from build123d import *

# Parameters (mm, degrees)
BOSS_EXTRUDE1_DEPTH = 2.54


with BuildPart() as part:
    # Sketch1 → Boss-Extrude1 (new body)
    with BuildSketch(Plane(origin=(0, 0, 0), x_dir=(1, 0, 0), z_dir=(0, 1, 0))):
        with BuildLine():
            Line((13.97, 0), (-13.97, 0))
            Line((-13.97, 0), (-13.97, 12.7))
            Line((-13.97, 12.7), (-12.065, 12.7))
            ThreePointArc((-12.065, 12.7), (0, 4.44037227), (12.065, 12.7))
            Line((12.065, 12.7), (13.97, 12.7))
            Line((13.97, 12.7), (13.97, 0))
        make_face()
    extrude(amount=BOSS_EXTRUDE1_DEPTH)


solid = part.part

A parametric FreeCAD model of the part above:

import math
import FreeCAD as App
import Part
import Sketcher

V = App.Vector
Q = App.Units.Quantity

doc = App.newDocument("Part")
body = doc.addObject("PartDesign::Body", "Body")

# Sketch on XZ plane
sketch1 = body.newObject("Sketcher::SketchObject", "Sketch")
sketch1.AttachmentSupport = (doc.getObject("XZ_Plane"), [""])
sketch1.MapMode = "FlatFace"
sketch1.addGeometry([
    Part.LineSegment(V(-14, 0, 0), V(14, 0, 0)),  # 0
    Part.LineSegment(V(14, 0, 0), V(14, -12.7, 0)),  # 1
    Part.LineSegment(V(14, -12.7, 0), V(12.1, -12.7, 0)),  # 2
    Part.ArcOfCircle(Part.Circle(V(0, -17.4, 0), V(0, 0, 1), 12.9), math.radians(21), math.radians(159)),  # 3
    Part.LineSegment(V(-12.1, -12.7, 0), V(-14, -12.7, 0)),  # 4
    Part.LineSegment(V(-14, -12.7, 0), V(-14, 0, 0)),  # 5
], False)
sketch1.addConstraint([
    Sketcher.Constraint("Coincident", 0, 2, 1, 1),
    Sketcher.Constraint("Coincident", 1, 2, 2, 1),
    Sketcher.Constraint("Coincident", 2, 2, 3, 1),
    Sketcher.Constraint("Coincident", 3, 2, 4, 1),
    Sketcher.Constraint("Coincident", 4, 2, 5, 1),
    Sketcher.Constraint("Coincident", 5, 2, 0, 1),
    Sketcher.Constraint("Horizontal", 0),
    Sketcher.Constraint("Vertical", 1),
    Sketcher.Constraint("Horizontal", 2),
    Sketcher.Constraint("Horizontal", 4),
    Sketcher.Constraint("Vertical", 5),
    Sketcher.Constraint("Symmetric", 0, 2, 5, 2, -1, 1),
    Sketcher.Constraint("Symmetric", 2, 2, 3, 2, -2),
    Sketcher.Constraint("DistanceX", 0, 1, 0, 2, Q("1.1 in")),
    Sketcher.Constraint("DistanceY", 1, 2, 1, 1, Q("0.5 in")),
    Sketcher.Constraint("DistanceX", 2, 2, 2, 1, Q("0.075 in")),
    Sketcher.Constraint("Radius", 3, 12.941605),
])
pad1 = body.newObject("PartDesign::Pad", "Pad")
pad1.Profile = sketch1
pad1.Length = Q("0.1 in")
pad1.Reversed = True

doc.recompute()
